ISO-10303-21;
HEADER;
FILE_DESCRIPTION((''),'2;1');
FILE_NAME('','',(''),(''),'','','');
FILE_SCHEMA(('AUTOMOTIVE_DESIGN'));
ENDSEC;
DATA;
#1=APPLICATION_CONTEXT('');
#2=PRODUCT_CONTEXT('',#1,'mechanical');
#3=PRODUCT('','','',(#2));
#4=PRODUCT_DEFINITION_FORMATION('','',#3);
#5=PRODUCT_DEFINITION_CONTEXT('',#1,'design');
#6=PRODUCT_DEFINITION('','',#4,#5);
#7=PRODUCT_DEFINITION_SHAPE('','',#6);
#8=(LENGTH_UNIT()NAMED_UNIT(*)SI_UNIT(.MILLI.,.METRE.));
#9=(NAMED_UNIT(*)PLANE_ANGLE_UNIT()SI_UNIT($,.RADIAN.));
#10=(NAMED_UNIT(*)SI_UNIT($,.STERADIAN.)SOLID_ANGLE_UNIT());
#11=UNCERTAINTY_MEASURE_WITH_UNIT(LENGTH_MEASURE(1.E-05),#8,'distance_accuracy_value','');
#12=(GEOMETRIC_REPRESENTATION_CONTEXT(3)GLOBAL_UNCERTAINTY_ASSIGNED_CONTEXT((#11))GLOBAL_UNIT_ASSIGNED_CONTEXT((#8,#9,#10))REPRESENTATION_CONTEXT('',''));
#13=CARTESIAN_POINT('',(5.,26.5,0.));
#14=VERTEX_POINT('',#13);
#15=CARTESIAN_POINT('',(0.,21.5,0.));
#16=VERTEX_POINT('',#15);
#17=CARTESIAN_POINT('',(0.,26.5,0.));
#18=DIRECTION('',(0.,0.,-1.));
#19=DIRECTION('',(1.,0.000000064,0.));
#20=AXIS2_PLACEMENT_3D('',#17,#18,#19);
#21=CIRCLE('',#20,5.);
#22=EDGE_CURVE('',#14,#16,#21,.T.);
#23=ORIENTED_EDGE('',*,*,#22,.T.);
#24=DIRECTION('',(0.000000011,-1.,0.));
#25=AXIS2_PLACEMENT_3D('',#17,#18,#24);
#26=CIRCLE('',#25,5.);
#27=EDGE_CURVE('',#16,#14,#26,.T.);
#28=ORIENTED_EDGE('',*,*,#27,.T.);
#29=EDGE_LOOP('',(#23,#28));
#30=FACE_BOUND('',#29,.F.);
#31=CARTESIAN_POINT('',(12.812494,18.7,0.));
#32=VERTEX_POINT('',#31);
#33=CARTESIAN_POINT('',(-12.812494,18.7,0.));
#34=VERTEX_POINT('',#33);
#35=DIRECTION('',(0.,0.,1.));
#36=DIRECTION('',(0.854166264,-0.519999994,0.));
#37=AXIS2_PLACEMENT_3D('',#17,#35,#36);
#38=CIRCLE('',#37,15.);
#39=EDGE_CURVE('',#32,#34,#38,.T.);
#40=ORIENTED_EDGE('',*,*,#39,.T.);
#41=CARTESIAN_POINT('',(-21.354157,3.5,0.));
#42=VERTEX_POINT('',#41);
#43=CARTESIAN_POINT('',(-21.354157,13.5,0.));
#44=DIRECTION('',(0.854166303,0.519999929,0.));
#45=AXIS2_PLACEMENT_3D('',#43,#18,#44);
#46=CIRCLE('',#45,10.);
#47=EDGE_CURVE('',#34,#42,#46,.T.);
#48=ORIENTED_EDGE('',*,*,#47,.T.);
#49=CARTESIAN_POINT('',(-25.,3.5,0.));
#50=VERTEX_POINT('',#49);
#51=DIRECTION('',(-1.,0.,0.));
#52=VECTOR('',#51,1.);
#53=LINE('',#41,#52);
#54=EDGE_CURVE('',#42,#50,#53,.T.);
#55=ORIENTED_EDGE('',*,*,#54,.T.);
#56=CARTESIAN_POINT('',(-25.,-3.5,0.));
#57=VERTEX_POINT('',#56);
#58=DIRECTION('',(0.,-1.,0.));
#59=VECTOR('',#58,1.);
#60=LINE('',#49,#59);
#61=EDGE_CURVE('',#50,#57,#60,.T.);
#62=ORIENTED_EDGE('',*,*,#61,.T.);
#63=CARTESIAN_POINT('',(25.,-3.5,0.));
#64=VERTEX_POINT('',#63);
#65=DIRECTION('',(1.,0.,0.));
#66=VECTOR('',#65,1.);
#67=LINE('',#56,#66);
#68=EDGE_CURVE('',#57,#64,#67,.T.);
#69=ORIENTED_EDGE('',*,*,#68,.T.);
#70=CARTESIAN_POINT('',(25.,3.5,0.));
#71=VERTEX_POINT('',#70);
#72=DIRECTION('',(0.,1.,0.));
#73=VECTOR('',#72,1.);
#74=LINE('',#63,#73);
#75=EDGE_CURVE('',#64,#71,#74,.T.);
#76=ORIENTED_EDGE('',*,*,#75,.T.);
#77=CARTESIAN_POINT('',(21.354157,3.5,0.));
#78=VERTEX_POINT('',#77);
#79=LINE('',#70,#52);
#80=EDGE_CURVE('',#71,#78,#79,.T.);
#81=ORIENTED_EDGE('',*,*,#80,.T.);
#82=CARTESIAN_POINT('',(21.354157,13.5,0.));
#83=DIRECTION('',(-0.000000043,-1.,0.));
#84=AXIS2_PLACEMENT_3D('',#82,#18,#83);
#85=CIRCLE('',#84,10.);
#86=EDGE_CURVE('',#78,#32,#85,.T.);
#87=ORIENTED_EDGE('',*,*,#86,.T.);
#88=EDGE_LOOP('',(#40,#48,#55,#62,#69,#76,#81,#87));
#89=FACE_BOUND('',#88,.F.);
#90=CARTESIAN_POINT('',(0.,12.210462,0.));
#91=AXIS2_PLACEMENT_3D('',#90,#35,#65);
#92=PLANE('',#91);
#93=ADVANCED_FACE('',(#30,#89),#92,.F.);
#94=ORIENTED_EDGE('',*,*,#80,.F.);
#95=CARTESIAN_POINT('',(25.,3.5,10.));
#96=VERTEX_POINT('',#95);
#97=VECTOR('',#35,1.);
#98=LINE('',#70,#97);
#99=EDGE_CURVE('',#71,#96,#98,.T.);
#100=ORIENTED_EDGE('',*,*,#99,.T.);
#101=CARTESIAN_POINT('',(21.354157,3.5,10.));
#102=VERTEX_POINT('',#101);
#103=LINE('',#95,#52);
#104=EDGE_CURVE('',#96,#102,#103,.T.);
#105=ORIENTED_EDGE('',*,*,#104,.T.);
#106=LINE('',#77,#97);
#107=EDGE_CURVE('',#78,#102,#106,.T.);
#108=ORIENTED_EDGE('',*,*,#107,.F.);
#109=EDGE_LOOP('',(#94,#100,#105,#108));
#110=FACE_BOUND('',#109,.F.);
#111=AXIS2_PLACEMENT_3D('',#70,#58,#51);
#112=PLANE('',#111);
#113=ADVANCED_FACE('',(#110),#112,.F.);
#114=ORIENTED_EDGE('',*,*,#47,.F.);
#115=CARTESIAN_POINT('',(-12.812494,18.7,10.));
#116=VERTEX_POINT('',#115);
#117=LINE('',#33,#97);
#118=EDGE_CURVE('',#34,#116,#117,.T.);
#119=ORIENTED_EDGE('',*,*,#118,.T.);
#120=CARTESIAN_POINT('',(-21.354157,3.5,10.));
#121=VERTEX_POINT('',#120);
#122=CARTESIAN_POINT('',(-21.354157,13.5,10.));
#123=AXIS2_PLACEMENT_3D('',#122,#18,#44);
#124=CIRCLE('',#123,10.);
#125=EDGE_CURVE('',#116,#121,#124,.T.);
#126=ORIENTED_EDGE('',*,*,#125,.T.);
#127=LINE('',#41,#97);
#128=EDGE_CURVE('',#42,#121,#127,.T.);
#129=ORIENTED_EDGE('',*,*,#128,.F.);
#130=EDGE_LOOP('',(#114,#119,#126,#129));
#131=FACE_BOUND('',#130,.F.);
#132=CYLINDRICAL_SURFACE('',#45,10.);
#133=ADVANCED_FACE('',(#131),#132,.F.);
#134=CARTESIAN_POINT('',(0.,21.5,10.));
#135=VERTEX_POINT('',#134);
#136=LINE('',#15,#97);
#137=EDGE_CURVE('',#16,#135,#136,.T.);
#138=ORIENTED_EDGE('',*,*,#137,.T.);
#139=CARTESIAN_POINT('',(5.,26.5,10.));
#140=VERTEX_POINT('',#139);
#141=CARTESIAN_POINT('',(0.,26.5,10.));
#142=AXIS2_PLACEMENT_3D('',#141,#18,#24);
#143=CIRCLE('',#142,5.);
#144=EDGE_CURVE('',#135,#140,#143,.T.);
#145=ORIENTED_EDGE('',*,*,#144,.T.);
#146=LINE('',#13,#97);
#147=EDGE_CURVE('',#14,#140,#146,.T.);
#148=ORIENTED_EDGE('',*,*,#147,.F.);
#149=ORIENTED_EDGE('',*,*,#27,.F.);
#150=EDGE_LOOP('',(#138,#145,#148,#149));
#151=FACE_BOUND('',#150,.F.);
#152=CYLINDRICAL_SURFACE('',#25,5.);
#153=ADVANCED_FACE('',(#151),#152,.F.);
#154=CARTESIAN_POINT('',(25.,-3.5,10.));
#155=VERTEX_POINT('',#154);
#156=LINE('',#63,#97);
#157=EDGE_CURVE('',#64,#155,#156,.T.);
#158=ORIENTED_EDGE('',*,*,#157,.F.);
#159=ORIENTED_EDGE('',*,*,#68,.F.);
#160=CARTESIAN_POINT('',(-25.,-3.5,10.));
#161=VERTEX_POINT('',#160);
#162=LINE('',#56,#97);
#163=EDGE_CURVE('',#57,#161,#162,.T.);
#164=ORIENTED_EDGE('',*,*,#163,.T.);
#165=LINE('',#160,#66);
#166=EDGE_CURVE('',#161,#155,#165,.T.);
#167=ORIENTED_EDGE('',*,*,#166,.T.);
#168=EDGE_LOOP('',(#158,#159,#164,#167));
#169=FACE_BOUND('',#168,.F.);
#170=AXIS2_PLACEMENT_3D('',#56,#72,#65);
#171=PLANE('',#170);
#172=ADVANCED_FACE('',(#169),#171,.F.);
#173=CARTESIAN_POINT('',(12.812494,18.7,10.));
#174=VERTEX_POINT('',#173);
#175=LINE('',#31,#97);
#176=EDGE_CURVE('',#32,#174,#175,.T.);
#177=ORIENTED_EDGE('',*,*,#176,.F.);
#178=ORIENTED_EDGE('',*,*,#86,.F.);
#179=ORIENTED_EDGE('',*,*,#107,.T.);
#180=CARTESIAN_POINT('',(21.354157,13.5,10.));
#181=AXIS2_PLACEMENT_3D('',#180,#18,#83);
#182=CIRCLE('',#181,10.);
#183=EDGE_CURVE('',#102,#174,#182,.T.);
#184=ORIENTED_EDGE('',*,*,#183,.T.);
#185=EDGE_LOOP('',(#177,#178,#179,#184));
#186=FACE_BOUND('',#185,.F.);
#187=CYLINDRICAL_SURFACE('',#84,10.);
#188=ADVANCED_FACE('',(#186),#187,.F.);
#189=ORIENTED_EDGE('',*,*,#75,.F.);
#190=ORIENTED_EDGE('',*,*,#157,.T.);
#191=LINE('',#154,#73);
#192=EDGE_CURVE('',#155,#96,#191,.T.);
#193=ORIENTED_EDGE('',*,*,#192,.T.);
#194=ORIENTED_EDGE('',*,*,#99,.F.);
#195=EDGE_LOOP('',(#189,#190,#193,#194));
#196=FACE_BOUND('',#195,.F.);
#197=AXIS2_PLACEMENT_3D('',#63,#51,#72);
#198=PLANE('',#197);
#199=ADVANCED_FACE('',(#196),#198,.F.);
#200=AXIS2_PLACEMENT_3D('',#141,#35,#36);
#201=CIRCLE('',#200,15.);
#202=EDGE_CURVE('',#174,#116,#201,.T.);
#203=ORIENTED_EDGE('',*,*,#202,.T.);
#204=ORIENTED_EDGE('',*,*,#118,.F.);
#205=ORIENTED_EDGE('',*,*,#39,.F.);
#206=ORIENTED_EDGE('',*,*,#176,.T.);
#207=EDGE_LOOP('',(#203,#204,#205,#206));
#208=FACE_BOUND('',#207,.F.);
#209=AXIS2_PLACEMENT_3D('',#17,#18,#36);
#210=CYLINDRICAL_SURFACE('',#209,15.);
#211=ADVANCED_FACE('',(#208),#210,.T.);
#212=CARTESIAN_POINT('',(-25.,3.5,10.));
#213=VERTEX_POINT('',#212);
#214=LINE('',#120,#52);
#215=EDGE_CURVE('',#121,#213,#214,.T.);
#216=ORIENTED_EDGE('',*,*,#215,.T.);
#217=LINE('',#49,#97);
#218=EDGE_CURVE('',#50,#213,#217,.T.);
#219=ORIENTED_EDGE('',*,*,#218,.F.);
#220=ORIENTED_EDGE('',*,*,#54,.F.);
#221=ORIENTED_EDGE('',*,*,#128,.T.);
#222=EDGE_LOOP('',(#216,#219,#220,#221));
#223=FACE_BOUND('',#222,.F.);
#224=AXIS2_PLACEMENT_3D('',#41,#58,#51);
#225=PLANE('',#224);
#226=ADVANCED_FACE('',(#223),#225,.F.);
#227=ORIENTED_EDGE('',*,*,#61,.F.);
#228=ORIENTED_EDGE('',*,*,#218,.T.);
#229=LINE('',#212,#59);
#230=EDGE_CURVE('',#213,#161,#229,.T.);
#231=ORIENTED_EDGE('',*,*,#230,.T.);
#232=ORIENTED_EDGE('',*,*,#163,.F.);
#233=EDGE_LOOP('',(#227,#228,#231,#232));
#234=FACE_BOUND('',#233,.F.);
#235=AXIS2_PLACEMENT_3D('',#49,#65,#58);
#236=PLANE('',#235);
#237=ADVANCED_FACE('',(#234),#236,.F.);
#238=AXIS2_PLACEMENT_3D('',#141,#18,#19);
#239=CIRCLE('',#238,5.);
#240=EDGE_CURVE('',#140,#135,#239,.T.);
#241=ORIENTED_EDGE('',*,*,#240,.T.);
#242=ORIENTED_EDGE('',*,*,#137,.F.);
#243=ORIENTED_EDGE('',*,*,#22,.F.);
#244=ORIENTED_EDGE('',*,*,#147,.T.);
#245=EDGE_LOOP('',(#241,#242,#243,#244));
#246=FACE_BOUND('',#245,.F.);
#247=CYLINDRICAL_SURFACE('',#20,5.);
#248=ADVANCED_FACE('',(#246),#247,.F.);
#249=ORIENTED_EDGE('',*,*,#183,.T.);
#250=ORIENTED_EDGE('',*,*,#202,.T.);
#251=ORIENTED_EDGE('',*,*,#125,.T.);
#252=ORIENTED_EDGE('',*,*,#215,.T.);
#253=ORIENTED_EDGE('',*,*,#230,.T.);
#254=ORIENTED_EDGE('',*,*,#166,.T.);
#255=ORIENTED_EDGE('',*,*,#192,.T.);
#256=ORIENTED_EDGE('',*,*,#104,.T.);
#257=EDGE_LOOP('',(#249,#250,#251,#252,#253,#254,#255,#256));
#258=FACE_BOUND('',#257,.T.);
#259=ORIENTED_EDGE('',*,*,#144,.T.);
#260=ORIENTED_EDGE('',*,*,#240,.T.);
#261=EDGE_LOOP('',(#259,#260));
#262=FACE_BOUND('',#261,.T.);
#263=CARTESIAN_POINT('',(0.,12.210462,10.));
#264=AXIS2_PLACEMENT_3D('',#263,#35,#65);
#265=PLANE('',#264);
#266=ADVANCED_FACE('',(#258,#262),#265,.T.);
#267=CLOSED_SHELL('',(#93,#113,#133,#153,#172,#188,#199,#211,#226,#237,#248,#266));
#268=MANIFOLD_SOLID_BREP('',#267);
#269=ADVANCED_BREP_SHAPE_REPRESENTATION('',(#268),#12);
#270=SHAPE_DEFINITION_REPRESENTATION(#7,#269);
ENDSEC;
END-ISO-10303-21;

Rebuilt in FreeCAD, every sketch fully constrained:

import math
import FreeCAD as App
import Part
import Sketcher
Q = App.Units.Quantity

doc = App.newDocument("Part")
params = doc.addObject("Spreadsheet::Sheet", "Params")
for row, (alias, value) in enumerate([
    ("sketch1_radius", "10 mm"),
    ("sketch1_radius2", "15 mm"),
    ("sketch1_radius3", "5 mm"),
    ("sketch1_width", "50 mm"),
    ("sketch1_height", "7 mm"),
    ("pad1_length", "10 mm"),
], start=1):
    params.set(f"A{row}", alias)
    params.set(f"B{row}", "=" + value)
    params.setAlias(f"B{row}", alias)

body = doc.addObject("PartDesign::Body", "Body")

# Sketch on XY plane
sketch1 = doc.addObject("Sketcher::SketchObject", "Sketch")
body.addObject(sketch1)
sketch1.AttachmentSupport = (doc.XY_Plane, [""])
sketch1.MapMode = "FlatFace"
sketch1.addGeometry(Part.ArcOfCircle(Part.Circle(App.Vector(21.4, 13.5, 0), App.Vector(0, 0, 1), 10), math.radians(149), math.radians(270)), False)
sketch1.addGeometry(Part.ArcOfCircle(Part.Circle(App.Vector(0, 26.5, 0), App.Vector(0, 0, 1), 15), math.radians(-31), math.radians(211)), False)
sketch1.addGeometry(Part.ArcOfCircle(Part.Circle(App.Vector(-21.4, 13.5, 0), App.Vector(0, 0, 1), 10), math.radians(-90), math.radians(31)), False)
sketch1.addGeometry(Part.LineSegment(App.Vector(-21.4, 3.5, 0), App.Vector(-25, 3.5, 0)), False)
sketch1.addGeometry(Part.LineSegment(App.Vector(-25, 3.5, 0), App.Vector(-25, -3.5, 0)), False)
sketch1.addGeometry(Part.LineSegment(App.Vector(-25, -3.5, 0), App.Vector(25, -3.5, 0)), False)
sketch1.addGeometry(Part.LineSegment(App.Vector(25, -3.5, 0), App.Vector(25, 3.5, 0)), False)
sketch1.addGeometry(Part.LineSegment(App.Vector(25, 3.5, 0), App.Vector(21.4, 3.5, 0)), False)
sketch1.addGeometry(Part.ArcOfCircle(Part.Circle(App.Vector(0, 26.5, 0), App.Vector(0, 0, 1), 5), math.radians(0), math.radians(270)), False)
sketch1.addGeometry(Part.ArcOfCircle(Part.Circle(App.Vector(0, 26.5, 0), App.Vector(0, 0, 1), 5), math.radians(-90), math.radians(0)), False)
sketch1.addConstraint(Sketcher.Constraint("Tangent", 0, 1, 1, 1))
sketch1.addConstraint(Sketcher.Constraint("Tangent", 1, 2, 2, 2))
sketch1.addConstraint(Sketcher.Constraint("Tangent", 2, 1, 3, 1))
sketch1.addConstraint(Sketcher.Constraint("Coincident", 3, 2, 4, 1))
sketch1.addConstraint(Sketcher.Constraint("Coincident", 4, 2, 5, 1))
sketch1.addConstraint(Sketcher.Constraint("Coincident", 5, 2, 6, 1))
sketch1.addConstraint(Sketcher.Constraint("Coincident", 6, 2, 7, 1))
sketch1.addConstraint(Sketcher.Constraint("Tangent", 7, 2, 0, 2))
sketch1.addConstraint(Sketcher.Constraint("Tangent", 8, 1, 9, 2))
sketch1.addConstraint(Sketcher.Constraint("Coincident", 9, 1, 8, 2))
sketch1.addConstraint(Sketcher.Constraint("Horizontal", 3))
sketch1.addConstraint(Sketcher.Constraint("Vertical", 4))
sketch1.addConstraint(Sketcher.Constraint("Horizontal", 5))
sketch1.addConstraint(Sketcher.Constraint("Vertical", 6))
sketch1.addConstraint(Sketcher.Constraint("Horizontal", 7))
sketch1.addConstraint(Sketcher.Constraint("Coincident", 8, 3, 1, 3))
sketch1.addConstraint(Sketcher.Constraint("Equal", 0, 2))
sketch1.addConstraint(Sketcher.Constraint("Symmetric", 3, 2, 5, 2, -1, 1))
sketch1.addConstraint(Sketcher.Constraint("Symmetric", 0, 3, 2, 3, -2))
sketch1.addConstraint(Sketcher.Constraint("PointOnObject", 9, 1, -2))
sketch1.addConstraint(Sketcher.Constraint("Horizontal", 9, 3, 8, 1))
sketch1.addConstraint(Sketcher.Constraint("Radius", 0, Q("10 mm")))
sketch1.addConstraint(Sketcher.Constraint("Radius", 1, Q("15 mm")))
sketch1.addConstraint(Sketcher.Constraint("Radius", 8, Q("5 mm")))
sketch1.addConstraint(Sketcher.Constraint("DistanceX", 5, 1, 5, 2, Q("50 mm")))
sketch1.addConstraint(Sketcher.Constraint("DistanceY", 4, 2, 4, 1, Q("7 mm")))
sketch1.addConstraint(Sketcher.Constraint("DistanceY", 0, 3, 1, 3, Q("12.999999 mm")))
sketch1.setExpression("Constraints[21]", "Params.sketch1_radius")
sketch1.setExpression("Constraints[22]", "Params.sketch1_radius2")
sketch1.setExpression("Constraints[23]", "Params.sketch1_radius3")
sketch1.setExpression("Constraints[24]", "Params.sketch1_width")
sketch1.setExpression("Constraints[25]", "Params.sketch1_height")
pad1 = doc.addObject("PartDesign::Pad", "Pad")
body.addObject(pad1)
pad1.Profile = sketch1
pad1.setExpression("Length", "Params.pad1_length")

doc.recompute()
